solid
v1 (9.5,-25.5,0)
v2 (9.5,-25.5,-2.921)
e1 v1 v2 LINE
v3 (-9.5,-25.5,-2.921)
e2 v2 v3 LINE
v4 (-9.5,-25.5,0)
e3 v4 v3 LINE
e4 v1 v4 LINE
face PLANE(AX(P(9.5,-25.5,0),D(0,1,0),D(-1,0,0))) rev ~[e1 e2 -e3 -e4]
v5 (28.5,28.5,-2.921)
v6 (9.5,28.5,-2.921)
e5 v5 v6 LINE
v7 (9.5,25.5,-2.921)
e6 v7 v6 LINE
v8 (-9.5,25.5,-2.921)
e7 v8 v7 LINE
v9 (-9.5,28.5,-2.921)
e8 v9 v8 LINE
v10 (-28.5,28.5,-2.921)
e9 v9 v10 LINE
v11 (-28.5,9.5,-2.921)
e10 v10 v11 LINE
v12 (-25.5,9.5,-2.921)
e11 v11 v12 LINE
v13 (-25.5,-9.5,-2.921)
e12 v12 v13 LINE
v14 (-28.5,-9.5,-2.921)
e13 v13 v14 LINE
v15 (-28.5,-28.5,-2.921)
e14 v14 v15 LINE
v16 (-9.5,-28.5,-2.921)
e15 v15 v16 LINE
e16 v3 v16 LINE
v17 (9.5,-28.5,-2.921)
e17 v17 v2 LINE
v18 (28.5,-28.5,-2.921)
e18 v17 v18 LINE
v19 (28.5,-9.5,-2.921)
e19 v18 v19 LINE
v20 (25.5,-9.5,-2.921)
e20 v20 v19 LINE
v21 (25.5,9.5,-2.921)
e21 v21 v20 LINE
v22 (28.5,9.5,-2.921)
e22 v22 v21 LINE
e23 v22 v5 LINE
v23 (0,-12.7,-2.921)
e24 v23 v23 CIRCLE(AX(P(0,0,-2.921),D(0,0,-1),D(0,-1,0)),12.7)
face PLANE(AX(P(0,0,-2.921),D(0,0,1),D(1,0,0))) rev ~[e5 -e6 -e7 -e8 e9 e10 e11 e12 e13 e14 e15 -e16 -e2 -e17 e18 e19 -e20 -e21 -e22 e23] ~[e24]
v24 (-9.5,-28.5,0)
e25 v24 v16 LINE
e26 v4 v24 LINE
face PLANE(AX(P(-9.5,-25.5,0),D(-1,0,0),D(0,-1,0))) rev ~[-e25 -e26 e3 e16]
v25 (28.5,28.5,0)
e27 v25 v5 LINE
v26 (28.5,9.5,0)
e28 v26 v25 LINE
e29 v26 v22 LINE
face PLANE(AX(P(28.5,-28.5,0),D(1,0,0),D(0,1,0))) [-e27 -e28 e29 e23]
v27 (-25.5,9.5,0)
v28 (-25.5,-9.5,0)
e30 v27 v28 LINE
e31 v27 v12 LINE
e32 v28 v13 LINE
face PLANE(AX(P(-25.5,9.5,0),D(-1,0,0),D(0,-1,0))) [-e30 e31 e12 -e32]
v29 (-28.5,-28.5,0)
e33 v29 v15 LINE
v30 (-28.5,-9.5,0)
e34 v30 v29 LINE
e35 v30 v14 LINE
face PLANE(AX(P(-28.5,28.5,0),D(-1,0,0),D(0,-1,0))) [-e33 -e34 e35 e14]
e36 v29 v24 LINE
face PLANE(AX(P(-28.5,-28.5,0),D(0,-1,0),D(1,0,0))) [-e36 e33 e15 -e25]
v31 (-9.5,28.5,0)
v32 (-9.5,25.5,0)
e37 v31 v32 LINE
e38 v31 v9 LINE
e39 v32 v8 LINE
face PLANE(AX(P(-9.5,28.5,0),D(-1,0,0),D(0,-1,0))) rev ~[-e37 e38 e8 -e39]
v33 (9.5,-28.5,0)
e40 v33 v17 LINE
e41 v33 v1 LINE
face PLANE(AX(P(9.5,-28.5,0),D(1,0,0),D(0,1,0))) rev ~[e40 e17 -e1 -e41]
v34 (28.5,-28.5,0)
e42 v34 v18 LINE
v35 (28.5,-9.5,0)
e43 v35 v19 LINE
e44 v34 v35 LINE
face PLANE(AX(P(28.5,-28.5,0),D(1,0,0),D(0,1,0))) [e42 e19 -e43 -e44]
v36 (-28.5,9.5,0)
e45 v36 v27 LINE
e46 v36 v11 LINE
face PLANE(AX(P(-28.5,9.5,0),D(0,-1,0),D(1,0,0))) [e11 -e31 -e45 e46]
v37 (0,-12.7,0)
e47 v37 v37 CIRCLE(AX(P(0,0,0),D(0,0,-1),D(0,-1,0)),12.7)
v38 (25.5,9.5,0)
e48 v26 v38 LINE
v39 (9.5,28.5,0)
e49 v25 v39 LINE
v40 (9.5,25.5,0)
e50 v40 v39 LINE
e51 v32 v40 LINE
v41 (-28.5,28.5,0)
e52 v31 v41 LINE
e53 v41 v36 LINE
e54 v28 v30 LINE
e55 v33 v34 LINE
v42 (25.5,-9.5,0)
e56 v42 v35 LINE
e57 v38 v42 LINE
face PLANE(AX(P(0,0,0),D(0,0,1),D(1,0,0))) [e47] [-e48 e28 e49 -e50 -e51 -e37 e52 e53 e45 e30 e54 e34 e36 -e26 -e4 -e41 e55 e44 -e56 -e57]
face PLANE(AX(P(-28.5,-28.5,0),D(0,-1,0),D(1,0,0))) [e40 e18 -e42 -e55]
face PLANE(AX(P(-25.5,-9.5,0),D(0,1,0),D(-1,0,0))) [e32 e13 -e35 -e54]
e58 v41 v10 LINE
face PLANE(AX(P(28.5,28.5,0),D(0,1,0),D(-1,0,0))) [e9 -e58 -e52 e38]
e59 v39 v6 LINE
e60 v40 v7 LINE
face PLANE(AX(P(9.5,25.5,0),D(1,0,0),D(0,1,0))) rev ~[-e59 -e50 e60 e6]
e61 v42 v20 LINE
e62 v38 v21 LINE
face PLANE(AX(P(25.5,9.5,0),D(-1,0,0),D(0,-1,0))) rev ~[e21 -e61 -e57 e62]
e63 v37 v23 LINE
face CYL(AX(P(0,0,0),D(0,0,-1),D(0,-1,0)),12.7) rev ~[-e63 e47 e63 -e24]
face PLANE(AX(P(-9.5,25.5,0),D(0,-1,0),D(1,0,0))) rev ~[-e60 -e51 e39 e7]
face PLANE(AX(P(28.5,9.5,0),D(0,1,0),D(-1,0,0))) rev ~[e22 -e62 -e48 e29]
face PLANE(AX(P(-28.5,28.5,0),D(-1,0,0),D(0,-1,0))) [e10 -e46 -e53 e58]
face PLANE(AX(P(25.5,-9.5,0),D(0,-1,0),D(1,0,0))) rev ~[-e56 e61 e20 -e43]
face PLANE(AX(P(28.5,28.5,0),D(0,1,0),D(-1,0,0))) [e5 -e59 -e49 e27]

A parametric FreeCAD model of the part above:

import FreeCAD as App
import Part
import Sketcher

V = App.Vector
Q = App.Units.Quantity

doc = App.newDocument("Part")
body = doc.addObject("PartDesign::Body", "Body")

# Sketch on XY plane
sketch1 = doc.addObject("Sketcher::SketchObject", "Sketch")
body.addObject(sketch1)
sketch1.AttachmentSupport = (doc.XY_Plane, [""])
sketch1.MapMode = "FlatFace"
sketch1.addGeometry(Part.LineSegment(V(-28, 28, 0), V(-28, -28, 0)), False)
sketch1.addGeometry(Part.LineSegment(V(-28, -28, 0), V(28, -28, 0)), False)
sketch1.addGeometry(Part.LineSegment(V(28, -28, 0), V(28, 28, 0)), False)
sketch1.addGeometry(Part.LineSegment(V(28, 28, 0), V(-28, 28, 0)), False)
sketch1.addConstraint(Sketcher.Constraint("Coincident", 0, 2, 1, 1))
sketch1.addConstraint(Sketcher.Constraint("Coincident", 1, 2, 2, 1))
sketch1.addConstraint(Sketcher.Constraint("Coincident", 2, 2, 3, 1))
sketch1.addConstraint(Sketcher.Constraint("Coincident", 3, 2, 0, 1))
sketch1.addConstraint(Sketcher.Constraint("Vertical", 0))
sketch1.addConstraint(Sketcher.Constraint("Horizontal", 1))
sketch1.addConstraint(Sketcher.Constraint("Vertical", 2))
sketch1.addConstraint(Sketcher.Constraint("Horizontal", 3))
sketch1.addConstraint(Sketcher.Constraint("Symmetric", 0, 2, 2, 2, -1, 1))
sketch1.addConstraint(Sketcher.Constraint("Equal", 3, 0))
sketch1.addConstraint(Sketcher.Constraint("DistanceX", 1, 1, 1, 2, Q("2.2441 in")))
pad1 = doc.addObject("PartDesign::Pad", "Pad")
body.addObject(pad1)
pad1.Profile = sketch1
pad1.Length = Q("0.115 in")
pad1.Reversed = True

# Sketch on XY plane
sketch2 = doc.addObject("Sketcher::SketchObject", "Sketch001")
body.addObject(sketch2)
sketch2.AttachmentSupport = (doc.XY_Plane, [""])
sketch2.MapMode = "FlatFace"
sketch2.addGeometry(Part.LineSegment(V(9.5, 28.5, 0), V(-9.5, 28.5, 0)), False)
sketch2.addGeometry(Part.LineSegment(V(-9.5, 28.5, 0), V(-9.5, 25.5, 0)), False)
sketch2.addGeometry(Part.LineSegment(V(-9.5, 25.5, 0), V(9.5, 25.5, 0)), False)
sketch2.addGeometry(Part.LineSegment(V(9.5, 25.5, 0), V(9.5, 28.5, 0)), False)
sketch2.addGeometry(Part.LineSegment(V(-25.5, 9.5, 0), V(-28.5, 9.5, 0)), False)
sketch2.addGeometry(Part.LineSegment(V(-28.5, 9.5, 0), V(-28.5, -9.5, 0)), False)
sketch2.addGeometry(Part.LineSegment(V(-28.5, -9.5, 0), V(-25.5, -9.5, 0)), False)
sketch2.addGeometry(Part.LineSegment(V(-25.5, -9.5, 0), V(-25.5, 9.5, 0)), False)
sketch2.addGeometry(Part.LineSegment(V(28.5, -9.5, 0), V(28.5, 9.5, 0)), False)
sketch2.addGeometry(Part.LineSegment(V(28.5, 9.5, 0), V(25.5, 9.5, 0)), False)
sketch2.addGeometry(Part.LineSegment(V(25.5, 9.5, 0), V(25.5, -9.5, 0)), False)
sketch2.addGeometry(Part.LineSegment(V(25.5, -9.5, 0), V(28.5, -9.5, 0)), False)
sketch2.addGeometry(Part.LineSegment(V(-9.5, -25.5, 0), V(-9.5, -28.5, 0)), False)
sketch2.addGeometry(Part.LineSegment(V(-9.5, -28.5, 0), V(9.5, -28.5, 0)), False)
sketch2.addGeometry(Part.LineSegment(V(9.5, -28.5, 0), V(9.5, -25.5, 0)), False)
sketch2.addGeometry(Part.LineSegment(V(9.5, -25.5, 0), V(-9.5, -25.5, 0)), False)
sketch2.addConstraint(Sketcher.Constraint("Coincident", 0, 2, 1, 1))
sketch2.addConstraint(Sketcher.Constraint("Coincident", 1, 2, 2, 1))
sketch2.addConstraint(Sketcher.Constraint("Coincident", 2, 2, 3, 1))
sketch2.addConstraint(Sketcher.Constraint("Coincident", 3, 2, 0, 1))
sketch2.addConstraint(Sketcher.Constraint("Coincident", 4, 2, 5, 1))
sketch2.addConstraint(Sketcher.Constraint("Coincident", 5, 2, 6, 1))
sketch2.addConstraint(Sketcher.Constraint("Coincident", 6, 2, 7, 1))
sketch2.addConstraint(Sketcher.Constraint("Coincident", 7, 2, 4, 1))
sketch2.addConstraint(Sketcher.Constraint("Coincident", 8, 2, 9, 1))
sketch2.addConstraint(Sketcher.Constraint("Coincident", 9, 2, 10, 1))
sketch2.addConstraint(Sketcher.Constraint("Coincident", 10, 2, 11, 1))
sketch2.addConstraint(Sketcher.Constraint("Coincident", 11, 2, 8, 1))
sketch2.addConstraint(Sketcher.Constraint("Coincident", 12, 2, 13, 1))
sketch2.addConstraint(Sketcher.Constraint("Coincident", 13, 2, 14, 1))
sketch2.addConstraint(Sketcher.Constraint("Coincident", 14, 2, 15, 1))
sketch2.addConstraint(Sketcher.Constraint("Coincident", 15, 2, 12, 1))
sketch2.addConstraint(Sketcher.Constraint("Horizontal", 0))
sketch2.addConstraint(Sketcher.Constraint("Vertical", 1))
sketch2.addConstraint(Sketcher.Constraint("Horizontal", 2))
sketch2.addConstraint(Sketcher.Constraint("Vertical", 3))
sketch2.addConstraint(Sketcher.Constraint("Horizontal", 4))
sketch2.addConstraint(Sketcher.Constraint("Vertical", 5))
sketch2.addConstraint(Sketcher.Constraint("Horizontal", 6))
sketch2.addConstraint(Sketcher.Constraint("Vertical", 7))
sketch2.addConstraint(Sketcher.Constraint("Vertical", 8))
sketch2.addConstraint(Sketcher.Constraint("Horizontal", 9))
sketch2.addConstraint(Sketcher.Constraint("Vertical", 10))
sketch2.addConstraint(Sketcher.Constraint("Horizontal", 11))
sketch2.addConstraint(Sketcher.Constraint("Vertical", 12))
sketch2.addConstraint(Sketcher.Constraint("Horizontal", 13))
sketch2.addConstraint(Sketcher.Constraint("Vertical", 14))
sketch2.addConstraint(Sketcher.Constraint("Horizontal", 15))
sketch2.addConstraint(Sketcher.Constraint("Symmetric", 5, 2, 8, 2, -1, 1))
sketch2.addConstraint(Sketcher.Constraint("Symmetric", 7, 2, 10, 2, -1, 1))
sketch2.addConstraint(Sketcher.Constraint("Symmetric", 3, 2, 12, 2, -1, 1))
sketch2.addConstraint(Sketcher.Constraint("Symmetric", 1, 2, 14, 2, -1, 1))
sketch2.addConstraint(Sketcher.Constraint("Horizontal", 7, 2, 8, 2))
sketch2.addConstraint(Sketcher.Constraint("Vertical", 1, 2, 12, 2))
sketch2.addConstraint(Sketcher.Constraint("Equal", 11, 1))
sketch2.addConstraint(Sketcher.Constraint("Equal", 15, 5))
sketch2.addConstraint(Sketcher.Constraint("DistanceX", 4, 2, 4, 1, Q("0.1181 in")))
sketch2.addConstraint(Sketcher.Constraint("DistanceX", 0, 2, 0, 1, 19.0))
sketch2.addConstraint(Sketcher.Constraint("DistanceX", 4, 2, 1, 2, 19.0))
sketch2.addConstraint(Sketcher.Constraint("DistanceY", 4, 2, 0, 2, 19.0))
pocket1 = doc.addObject("PartDesign::Pocket", "Pocket")
body.addObject(pocket1)
pocket1.Profile = sketch2
pocket1.Length = Q("1 in")

# Sketch on XY plane
sketch3 = doc.addObject("Sketcher::SketchObject", "Sketch002")
body.addObject(sketch3)
sketch3.AttachmentSupport = (doc.XY_Plane, [""])
sketch3.MapMode = "FlatFace"
sketch3.addGeometry(Part.Circle(V(0, 0, 0), V(0, 0, 1), 13), False)
sketch3.addConstraint(Sketcher.Constraint("Coincident", 0, 3, -1, 1))
sketch3.addConstraint(Sketcher.Constraint("Diameter", 0, Q("1 in")))
doc.recompute()
hole = doc.addObject("PartDesign::Hole", "Hole")
body.addObject(hole)
hole.Profile = sketch3
hole.ThreadType = "None"
hole.Diameter = Q("1 in")
hole.DepthType = "ThroughAll"

doc.recompute()
